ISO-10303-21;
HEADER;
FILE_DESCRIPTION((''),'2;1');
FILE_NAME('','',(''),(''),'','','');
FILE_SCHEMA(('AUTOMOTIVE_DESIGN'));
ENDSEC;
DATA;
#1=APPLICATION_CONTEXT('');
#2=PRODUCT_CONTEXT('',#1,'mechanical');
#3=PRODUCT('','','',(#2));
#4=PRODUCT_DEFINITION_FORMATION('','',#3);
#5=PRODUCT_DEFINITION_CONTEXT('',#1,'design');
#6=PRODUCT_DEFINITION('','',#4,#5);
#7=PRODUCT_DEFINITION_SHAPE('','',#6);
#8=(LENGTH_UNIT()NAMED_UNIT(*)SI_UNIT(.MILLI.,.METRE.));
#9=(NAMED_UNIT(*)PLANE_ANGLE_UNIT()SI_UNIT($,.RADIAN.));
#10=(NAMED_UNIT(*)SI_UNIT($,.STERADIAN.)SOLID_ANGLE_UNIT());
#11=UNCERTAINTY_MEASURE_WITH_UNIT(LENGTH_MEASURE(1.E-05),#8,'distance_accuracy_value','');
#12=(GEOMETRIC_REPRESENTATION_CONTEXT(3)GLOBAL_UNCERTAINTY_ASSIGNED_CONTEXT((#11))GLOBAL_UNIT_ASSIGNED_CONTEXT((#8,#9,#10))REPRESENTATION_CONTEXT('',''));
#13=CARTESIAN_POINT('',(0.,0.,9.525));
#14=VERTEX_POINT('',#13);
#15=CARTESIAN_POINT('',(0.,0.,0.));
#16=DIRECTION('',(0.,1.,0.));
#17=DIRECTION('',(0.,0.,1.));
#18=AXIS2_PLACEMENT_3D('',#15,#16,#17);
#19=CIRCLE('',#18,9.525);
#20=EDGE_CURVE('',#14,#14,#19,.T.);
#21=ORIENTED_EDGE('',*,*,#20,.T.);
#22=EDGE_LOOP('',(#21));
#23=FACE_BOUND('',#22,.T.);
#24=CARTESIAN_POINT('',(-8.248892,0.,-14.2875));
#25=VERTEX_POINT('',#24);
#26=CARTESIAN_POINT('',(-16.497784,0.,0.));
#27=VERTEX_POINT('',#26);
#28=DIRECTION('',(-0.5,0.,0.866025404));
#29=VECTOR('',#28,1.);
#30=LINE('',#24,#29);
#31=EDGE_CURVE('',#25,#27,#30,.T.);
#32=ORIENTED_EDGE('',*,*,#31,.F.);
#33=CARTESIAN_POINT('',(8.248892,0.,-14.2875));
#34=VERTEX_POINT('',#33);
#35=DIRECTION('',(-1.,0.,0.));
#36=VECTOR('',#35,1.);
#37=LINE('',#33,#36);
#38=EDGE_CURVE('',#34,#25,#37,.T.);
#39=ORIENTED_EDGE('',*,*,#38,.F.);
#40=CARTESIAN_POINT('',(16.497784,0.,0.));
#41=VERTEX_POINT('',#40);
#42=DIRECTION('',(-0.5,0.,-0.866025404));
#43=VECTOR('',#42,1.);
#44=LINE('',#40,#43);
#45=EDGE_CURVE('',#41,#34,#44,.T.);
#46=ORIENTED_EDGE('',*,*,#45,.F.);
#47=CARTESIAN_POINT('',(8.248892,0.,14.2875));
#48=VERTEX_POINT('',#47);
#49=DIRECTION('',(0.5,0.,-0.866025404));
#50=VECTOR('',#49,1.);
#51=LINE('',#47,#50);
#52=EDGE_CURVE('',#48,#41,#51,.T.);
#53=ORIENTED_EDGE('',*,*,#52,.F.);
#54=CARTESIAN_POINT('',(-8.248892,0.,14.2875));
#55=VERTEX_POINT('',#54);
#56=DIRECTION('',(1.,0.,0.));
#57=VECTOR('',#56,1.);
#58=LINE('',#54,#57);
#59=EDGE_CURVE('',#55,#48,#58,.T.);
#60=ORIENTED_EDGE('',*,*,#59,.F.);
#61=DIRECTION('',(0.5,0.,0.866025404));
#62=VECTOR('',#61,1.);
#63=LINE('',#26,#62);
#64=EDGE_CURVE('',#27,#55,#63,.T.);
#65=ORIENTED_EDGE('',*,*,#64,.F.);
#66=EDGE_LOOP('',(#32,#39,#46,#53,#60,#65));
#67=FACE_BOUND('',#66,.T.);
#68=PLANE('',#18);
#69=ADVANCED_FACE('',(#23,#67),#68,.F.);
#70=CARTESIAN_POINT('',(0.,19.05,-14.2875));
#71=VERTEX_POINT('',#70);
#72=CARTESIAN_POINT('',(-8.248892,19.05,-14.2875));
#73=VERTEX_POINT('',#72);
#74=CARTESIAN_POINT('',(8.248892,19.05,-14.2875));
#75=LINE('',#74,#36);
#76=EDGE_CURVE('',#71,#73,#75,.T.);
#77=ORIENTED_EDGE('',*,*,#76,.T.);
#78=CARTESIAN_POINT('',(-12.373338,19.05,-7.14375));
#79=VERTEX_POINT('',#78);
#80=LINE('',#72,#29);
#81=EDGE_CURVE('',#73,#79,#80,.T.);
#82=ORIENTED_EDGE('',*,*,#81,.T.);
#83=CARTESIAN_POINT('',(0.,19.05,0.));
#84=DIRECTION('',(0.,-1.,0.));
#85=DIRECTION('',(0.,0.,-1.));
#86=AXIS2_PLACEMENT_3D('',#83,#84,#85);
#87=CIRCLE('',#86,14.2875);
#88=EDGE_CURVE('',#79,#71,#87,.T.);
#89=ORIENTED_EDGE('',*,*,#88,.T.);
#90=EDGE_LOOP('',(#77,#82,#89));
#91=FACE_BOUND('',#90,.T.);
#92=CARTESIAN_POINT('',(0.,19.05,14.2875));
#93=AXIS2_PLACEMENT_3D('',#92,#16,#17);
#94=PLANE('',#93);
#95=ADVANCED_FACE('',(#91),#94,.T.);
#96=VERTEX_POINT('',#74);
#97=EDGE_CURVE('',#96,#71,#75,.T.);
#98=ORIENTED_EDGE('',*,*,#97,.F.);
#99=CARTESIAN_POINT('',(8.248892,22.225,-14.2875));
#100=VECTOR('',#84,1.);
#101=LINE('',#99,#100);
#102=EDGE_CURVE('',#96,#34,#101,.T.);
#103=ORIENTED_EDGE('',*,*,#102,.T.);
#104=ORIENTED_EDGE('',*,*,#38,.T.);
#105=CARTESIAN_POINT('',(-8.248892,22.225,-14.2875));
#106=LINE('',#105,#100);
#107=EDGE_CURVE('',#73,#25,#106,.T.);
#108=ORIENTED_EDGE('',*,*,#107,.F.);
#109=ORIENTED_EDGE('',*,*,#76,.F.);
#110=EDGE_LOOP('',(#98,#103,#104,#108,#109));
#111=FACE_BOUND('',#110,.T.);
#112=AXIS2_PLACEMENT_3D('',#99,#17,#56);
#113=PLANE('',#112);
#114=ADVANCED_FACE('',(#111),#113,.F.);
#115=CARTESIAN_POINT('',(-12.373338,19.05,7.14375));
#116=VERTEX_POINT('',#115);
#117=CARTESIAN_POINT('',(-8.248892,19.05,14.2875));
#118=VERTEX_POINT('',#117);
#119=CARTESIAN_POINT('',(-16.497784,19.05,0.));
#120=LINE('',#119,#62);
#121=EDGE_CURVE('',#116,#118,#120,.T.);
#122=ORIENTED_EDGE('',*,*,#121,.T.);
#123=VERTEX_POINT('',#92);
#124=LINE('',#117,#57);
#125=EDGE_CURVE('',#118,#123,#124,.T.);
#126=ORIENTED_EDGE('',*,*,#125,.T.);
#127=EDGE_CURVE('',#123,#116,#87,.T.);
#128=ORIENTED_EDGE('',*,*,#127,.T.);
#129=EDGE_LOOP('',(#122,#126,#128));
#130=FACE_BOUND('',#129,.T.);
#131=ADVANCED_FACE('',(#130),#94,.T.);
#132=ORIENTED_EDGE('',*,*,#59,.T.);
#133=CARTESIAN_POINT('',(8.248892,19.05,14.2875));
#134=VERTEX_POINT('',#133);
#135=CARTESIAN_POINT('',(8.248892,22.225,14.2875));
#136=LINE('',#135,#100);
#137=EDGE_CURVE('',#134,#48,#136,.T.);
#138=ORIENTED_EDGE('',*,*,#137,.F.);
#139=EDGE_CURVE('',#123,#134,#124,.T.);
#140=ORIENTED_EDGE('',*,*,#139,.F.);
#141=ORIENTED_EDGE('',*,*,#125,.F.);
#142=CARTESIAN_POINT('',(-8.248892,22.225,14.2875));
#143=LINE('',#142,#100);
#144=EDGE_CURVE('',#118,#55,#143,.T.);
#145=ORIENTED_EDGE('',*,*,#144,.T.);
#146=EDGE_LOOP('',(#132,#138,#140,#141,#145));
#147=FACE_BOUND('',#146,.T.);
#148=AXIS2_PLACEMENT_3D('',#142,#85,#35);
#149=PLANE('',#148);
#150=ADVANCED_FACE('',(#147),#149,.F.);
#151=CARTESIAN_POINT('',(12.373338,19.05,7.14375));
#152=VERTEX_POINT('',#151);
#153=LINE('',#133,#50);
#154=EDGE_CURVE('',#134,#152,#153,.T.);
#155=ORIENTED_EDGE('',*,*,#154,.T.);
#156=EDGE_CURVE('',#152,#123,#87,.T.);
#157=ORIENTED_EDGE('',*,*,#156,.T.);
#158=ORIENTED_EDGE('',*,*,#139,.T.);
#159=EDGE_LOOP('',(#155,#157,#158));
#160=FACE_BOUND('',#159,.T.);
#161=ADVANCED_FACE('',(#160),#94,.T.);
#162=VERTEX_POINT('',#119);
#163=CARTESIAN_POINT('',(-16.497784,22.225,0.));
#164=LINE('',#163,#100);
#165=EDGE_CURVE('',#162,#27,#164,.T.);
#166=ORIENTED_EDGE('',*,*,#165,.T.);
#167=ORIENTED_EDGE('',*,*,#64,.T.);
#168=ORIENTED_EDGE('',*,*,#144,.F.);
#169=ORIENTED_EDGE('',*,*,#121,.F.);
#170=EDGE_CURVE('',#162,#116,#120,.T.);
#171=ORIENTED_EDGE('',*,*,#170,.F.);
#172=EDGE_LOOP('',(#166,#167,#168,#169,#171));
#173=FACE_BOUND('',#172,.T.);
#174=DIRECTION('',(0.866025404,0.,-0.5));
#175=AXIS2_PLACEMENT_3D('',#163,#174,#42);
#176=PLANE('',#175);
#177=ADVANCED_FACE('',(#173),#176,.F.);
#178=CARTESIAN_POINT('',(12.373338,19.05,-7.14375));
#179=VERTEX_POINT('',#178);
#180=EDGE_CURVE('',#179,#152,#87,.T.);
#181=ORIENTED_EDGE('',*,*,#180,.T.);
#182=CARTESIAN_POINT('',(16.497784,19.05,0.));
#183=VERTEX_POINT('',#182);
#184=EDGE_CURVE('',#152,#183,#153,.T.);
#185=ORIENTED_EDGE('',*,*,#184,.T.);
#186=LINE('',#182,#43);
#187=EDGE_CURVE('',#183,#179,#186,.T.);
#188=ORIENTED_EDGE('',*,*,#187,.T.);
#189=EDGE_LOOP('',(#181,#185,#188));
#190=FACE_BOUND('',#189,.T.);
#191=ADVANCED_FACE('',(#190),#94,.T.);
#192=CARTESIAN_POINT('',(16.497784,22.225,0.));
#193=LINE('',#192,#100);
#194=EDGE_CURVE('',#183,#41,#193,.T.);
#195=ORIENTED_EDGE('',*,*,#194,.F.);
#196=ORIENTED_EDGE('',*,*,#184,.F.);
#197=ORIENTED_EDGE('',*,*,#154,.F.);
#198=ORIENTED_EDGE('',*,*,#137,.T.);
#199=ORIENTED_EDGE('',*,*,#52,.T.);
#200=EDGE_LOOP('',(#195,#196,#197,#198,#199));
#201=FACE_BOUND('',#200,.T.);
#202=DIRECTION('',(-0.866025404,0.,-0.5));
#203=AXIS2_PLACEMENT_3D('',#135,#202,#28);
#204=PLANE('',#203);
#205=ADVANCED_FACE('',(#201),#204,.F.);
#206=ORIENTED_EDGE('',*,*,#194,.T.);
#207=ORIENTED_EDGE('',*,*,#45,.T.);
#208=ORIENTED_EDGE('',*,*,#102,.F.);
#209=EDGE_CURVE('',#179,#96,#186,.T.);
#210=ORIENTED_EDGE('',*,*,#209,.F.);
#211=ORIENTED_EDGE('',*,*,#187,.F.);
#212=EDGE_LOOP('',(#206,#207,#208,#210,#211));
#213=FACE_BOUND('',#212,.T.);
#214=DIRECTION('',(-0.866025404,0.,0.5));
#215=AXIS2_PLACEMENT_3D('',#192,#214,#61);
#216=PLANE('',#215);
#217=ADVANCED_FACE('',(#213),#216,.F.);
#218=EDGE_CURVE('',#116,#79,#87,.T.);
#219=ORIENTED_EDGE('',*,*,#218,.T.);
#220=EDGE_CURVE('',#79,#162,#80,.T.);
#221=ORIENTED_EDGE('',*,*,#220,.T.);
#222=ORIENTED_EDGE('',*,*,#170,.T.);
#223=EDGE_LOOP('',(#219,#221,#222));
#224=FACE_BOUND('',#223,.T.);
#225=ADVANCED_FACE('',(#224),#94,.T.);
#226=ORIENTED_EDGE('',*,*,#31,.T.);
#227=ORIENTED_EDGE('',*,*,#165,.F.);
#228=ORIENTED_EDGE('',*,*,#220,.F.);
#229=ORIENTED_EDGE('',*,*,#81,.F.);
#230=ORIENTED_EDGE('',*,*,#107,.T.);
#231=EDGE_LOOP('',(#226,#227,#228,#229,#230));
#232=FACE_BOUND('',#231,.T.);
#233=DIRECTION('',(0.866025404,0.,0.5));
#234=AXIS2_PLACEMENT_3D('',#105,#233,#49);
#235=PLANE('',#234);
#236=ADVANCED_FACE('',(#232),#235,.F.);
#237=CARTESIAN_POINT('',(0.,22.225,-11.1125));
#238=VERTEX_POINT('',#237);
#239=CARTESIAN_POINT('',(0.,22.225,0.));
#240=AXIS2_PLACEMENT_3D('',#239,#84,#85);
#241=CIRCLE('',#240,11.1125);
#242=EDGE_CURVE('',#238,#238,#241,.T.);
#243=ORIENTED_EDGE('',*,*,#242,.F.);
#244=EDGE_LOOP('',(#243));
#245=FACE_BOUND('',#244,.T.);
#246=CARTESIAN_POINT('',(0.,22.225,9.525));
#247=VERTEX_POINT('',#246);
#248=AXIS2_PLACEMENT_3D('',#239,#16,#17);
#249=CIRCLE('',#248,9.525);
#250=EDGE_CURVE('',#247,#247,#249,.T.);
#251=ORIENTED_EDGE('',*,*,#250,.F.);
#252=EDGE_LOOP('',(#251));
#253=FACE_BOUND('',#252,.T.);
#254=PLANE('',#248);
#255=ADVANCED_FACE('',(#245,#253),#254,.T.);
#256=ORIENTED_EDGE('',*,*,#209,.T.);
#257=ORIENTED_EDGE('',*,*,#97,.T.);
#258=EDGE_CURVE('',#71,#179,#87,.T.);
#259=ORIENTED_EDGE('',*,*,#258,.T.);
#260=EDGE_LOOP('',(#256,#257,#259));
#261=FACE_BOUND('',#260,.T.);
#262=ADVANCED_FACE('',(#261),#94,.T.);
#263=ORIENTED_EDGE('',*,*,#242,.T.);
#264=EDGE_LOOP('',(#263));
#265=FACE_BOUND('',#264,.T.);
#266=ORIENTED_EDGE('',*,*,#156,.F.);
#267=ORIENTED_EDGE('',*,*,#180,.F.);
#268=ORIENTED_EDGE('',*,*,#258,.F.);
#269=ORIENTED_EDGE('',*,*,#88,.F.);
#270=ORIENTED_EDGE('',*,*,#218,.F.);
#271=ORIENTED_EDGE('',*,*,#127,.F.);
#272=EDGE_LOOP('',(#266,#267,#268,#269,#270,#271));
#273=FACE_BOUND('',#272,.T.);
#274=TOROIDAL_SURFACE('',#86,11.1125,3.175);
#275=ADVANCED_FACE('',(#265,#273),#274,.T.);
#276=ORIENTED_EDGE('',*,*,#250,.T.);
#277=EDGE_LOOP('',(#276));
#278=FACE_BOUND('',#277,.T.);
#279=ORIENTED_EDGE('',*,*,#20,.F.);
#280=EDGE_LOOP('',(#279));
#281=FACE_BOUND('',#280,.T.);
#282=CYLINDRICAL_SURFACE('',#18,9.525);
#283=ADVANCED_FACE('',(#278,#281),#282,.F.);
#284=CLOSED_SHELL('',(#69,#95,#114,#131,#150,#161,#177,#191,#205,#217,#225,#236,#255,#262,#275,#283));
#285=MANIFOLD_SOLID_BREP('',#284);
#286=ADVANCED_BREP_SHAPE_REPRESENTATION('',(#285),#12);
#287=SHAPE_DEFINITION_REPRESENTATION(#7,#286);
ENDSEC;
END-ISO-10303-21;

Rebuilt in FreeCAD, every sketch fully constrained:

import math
import FreeCAD as App
import Part
import Sketcher
Q = App.Units.Quantity

doc = App.newDocument("Part")
body = doc.addObject("PartDesign::Body", "Body")

sketch1 = body.newObject("Sketcher::SketchObject", "Sketch")
sketch1.AttachmentSupport = (doc.getObject("XZ_Plane"), [""])
sketch1.MapMode = "FlatFace"
sketch1.addGeometry([
    Part.LineSegment(App.Vector(8, -14, 0), App.Vector(-8, -14, 0)),
    Part.LineSegment(App.Vector(-8, -14, 0), App.Vector(-16, 0, 0)),
    Part.LineSegment(App.Vector(-16, 0, 0), App.Vector(-8, 14, 0)),
    Part.LineSegment(App.Vector(-8, 14, 0), App.Vector(8, 14, 0)),
    Part.LineSegment(App.Vector(8, 14, 0), App.Vector(16, 0, 0)),
    Part.LineSegment(App.Vector(16, 0, 0), App.Vector(8, -14, 0)),
], False)
sketch1.addConstraint([
    Sketcher.Constraint("Coincident", 0, 2, 1, 1),
    Sketcher.Constraint("Coincident", 1, 2, 2, 1),
    Sketcher.Constraint("Coincident", 2, 2, 3, 1),
    Sketcher.Constraint("Coincident", 3, 2, 4, 1),
    Sketcher.Constraint("Coincident", 4, 2, 5, 1),
    Sketcher.Constraint("Coincident", 5, 2, 0, 1),
    Sketcher.Constraint("Horizontal", 0),
    Sketcher.Constraint("Horizontal", 3),
    Sketcher.Constraint("Symmetric", 0, 2, 3, 2, -1, 1),
    Sketcher.Constraint("Symmetric", 1, 2, 4, 2, -1, 1),
    Sketcher.Constraint("PointOnObject", 1, 2, -1),
    Sketcher.Constraint("Parallel", 2, 5),
    Sketcher.Constraint("Vertical", 0, 2, 2, 2),
    Sketcher.Constraint("Angle", 1, Q("120 deg")),
    Sketcher.Constraint("DistanceY", 0, 2, -1, 1, Q("0.5625 in")),
    Sketcher.Constraint("DistanceX", 0, 2, 0, 1, Q("16.497784 mm")),
])
pad1 = body.newObject("PartDesign::Pad", "Pad")
pad1.Profile = sketch1
pad1.Length = Q("0.875 in")
pad1.Reversed = True

sketch2 = body.newObject("Sketcher::SketchObject", "Sketch001")
sketch2.AttachmentSupport = (doc.getObject("XZ_Plane"), [""])
sketch2.MapMode = "FlatFace"
sketch2.AttachmentOffset = App.Placement(App.Vector(0, 0, -0.875 * 25.4), App.Rotation())
sketch2.addGeometry(Part.Circle(App.Vector(0, 0, 0), App.Vector(0, 0, 1), 10), False)
sketch2.addConstraint([
    Sketcher.Constraint("Coincident", 0, 3, -1, 1),
    Sketcher.Constraint("Diameter", 0, Q("0.75 in")),
])
pocket1 = body.newObject("PartDesign::Pocket", "Pocket")
pocket1.Profile = sketch2
pocket1.Type = "ThroughAll"
pocket1.Reversed = True

sketch3 = body.newObject("Sketcher::SketchObject", "Sketch002")
sketch3.AttachmentSupport = (doc.getObject("YZ_Plane"), [""])
sketch3.MapMode = "FlatFace"
sketch3.addGeometry([
    Part.ArcOfCircle(Part.Circle(App.Vector(19, 11.1, 0), App.Vector(0, 0, 1), 3.2), math.radians(0), math.radians(90)),
    Part.LineSegment(App.Vector(22.2, 11.1, 0), App.Vector(22.2, 17.5, 0)),
    Part.LineSegment(App.Vector(22.2, 17.5, 0), App.Vector(19.1, 17.5, 0)),
    Part.LineSegment(App.Vector(19.1, 17.5, 0), App.Vector(19.1, 14.3, 0)),
], False)
sketch3.addConstraint([
    Sketcher.Constraint("Tangent", 0, 1, 1, 1),
    Sketcher.Constraint("Coincident", 1, 2, 2, 1),
    Sketcher.Constraint("Coincident", 2, 2, 3, 1),
    Sketcher.Constraint("Coincident", 3, 2, 0, 2),
    Sketcher.Constraint("Vertical", 1),
    Sketcher.Constraint("Horizontal", 2),
    Sketcher.Constraint("Vertical", 3),
    Sketcher.Constraint("Vertical", 0, 3, 2, 2),
    Sketcher.Constraint("Equal", 2, 3),
    Sketcher.Constraint("Radius", 0, Q("0.125 in")),
    Sketcher.Constraint("DistanceX", -1, 1, 0, 3, Q("0.75 in")),
    Sketcher.Constraint("DistanceY", -1, 1, 0, 3, Q("0.4375 in")),
])
groove = body.newObject("PartDesign::Groove", "Groove")
groove.Profile = sketch3
groove.ReferenceAxis = (sketch3, ["H_Axis"])
groove.Angle = 360

doc.recompute()
